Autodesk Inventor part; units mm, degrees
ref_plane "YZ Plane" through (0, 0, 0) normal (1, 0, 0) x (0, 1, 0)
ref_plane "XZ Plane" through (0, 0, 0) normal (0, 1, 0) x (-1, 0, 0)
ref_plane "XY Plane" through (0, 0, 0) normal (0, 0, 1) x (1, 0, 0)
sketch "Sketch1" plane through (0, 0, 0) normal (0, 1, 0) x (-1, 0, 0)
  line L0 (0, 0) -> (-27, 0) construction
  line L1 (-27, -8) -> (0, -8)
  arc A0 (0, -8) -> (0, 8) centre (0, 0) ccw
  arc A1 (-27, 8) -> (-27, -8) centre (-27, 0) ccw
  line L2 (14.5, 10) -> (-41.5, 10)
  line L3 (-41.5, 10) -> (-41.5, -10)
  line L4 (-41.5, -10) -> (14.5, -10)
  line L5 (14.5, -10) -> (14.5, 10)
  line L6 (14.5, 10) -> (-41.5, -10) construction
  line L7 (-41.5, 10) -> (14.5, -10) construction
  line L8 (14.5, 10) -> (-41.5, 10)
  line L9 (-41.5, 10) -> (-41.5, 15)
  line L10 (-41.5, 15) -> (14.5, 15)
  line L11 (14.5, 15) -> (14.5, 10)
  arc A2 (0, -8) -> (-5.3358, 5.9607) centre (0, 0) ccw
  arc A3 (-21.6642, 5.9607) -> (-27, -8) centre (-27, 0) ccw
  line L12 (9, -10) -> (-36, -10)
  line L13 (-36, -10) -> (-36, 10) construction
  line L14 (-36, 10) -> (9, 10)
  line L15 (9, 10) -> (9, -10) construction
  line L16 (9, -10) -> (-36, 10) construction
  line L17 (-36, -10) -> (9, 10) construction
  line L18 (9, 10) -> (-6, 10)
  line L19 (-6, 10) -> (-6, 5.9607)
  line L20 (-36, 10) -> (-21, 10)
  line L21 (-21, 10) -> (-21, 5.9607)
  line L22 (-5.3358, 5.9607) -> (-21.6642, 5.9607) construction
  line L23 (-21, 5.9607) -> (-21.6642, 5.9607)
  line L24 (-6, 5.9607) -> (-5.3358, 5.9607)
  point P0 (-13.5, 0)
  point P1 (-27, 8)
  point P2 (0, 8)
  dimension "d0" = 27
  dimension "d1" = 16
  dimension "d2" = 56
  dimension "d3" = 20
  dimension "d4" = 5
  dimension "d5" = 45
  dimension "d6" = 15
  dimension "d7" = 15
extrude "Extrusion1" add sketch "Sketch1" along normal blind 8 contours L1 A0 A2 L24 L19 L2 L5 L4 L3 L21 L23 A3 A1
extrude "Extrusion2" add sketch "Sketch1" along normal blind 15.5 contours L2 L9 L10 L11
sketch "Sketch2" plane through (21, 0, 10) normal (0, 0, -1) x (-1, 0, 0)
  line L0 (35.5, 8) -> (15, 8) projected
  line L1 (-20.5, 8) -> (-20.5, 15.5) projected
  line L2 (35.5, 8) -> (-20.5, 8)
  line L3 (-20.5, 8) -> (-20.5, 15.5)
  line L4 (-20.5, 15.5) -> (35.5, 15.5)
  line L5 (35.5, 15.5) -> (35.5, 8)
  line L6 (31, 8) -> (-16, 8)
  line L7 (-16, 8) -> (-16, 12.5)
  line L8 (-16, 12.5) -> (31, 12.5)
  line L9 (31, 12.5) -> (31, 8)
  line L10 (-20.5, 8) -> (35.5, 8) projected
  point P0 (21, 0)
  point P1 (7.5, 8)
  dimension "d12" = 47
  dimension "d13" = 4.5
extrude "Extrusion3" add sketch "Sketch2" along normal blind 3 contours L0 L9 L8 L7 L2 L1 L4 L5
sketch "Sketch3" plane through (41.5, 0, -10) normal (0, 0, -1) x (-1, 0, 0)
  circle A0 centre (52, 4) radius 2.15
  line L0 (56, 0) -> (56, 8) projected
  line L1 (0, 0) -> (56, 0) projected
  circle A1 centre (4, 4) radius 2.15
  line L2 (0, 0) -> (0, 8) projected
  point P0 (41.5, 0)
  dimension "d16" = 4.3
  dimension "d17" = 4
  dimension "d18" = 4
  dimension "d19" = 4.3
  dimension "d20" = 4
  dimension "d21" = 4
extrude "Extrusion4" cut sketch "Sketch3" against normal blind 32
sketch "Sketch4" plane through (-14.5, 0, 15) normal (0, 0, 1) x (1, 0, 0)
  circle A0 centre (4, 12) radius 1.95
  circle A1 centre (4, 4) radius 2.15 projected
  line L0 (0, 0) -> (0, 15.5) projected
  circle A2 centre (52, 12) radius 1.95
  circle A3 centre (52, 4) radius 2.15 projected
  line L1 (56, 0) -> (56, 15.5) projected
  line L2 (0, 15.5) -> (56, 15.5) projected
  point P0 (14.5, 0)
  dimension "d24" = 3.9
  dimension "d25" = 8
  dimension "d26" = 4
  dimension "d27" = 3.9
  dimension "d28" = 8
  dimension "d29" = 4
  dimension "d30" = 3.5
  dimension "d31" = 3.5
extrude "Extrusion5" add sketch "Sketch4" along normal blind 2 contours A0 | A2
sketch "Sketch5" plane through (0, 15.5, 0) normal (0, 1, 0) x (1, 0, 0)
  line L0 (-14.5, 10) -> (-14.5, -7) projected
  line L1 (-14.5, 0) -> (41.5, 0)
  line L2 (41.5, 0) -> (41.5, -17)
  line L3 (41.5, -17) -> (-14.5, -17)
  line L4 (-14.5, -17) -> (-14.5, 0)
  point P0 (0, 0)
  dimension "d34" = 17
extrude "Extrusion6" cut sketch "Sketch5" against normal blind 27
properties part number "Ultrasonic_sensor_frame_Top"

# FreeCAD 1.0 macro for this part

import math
import FreeCAD as App
import Part
import Sketcher

V = App.Vector


def add_polygon(sketch, points):
    """Adds a closed chain of lines whose ends are joined by coincident constraints."""
    first, n = sketch.GeometryCount, len(points)
    for a, b in zip(points, points[1:] + points[:1]):
        sketch.addGeometry(Part.LineSegment(App.Vector(*a, 0), App.Vector(*b, 0)), False)
    for i in range(n):
        sketch.addConstraint(Sketcher.Constraint("Coincident", first + i, 2, first + (i + 1) % n, 1))

doc = App.newDocument("Part")
body = doc.addObject("PartDesign::Body", "Body")

# Sketch on XZ plane
sketch1 = body.newObject("Sketcher::SketchObject", "Sketch")
sketch1.AttachmentSupport = (doc.getObject("XZ_Plane"), [""])
sketch1.MapMode = "FlatFace"
sketch1.addGeometry([
    Part.LineSegment(V(0, -8, 0), V(27, -8, 0)),  # 0
    Part.ArcOfCircle(Part.Circle(V(27, 0, 0), V(0, 0, 1), 8), math.radians(-90), math.radians(90)),  # 1
    Part.ArcOfCircle(Part.Circle(V(27, 0, 0), V(0, 0, 1), 8), math.radians(90), math.radians(132)),  # 2
    Part.LineSegment(V(21.7, 6, 0), V(21, 6, 0)),  # 3
    Part.LineSegment(V(21, 6, 0), V(21, 10, 0)),  # 4
    Part.LineSegment(V(21, 10, 0), V(41.5, 10, 0)),  # 5
    Part.LineSegment(V(41.5, 10, 0), V(41.5, -10, 0)),  # 6
    Part.LineSegment(V(41.5, -10, 0), V(-14.5, -10, 0)),  # 7
    Part.LineSegment(V(-14.5, -10, 0), V(-14.5, 10, 0)),  # 8
    Part.LineSegment(V(-14.5, 10, 0), V(6, 10, 0)),  # 9
    Part.LineSegment(V(6, 10, 0), V(6, 6, 0)),  # 10
    Part.LineSegment(V(6, 6, 0), V(5.3, 6, 0)),  # 11
    Part.ArcOfCircle(Part.Circle(V(0, 0, 0), V(0, 0, 1), 8), math.radians(48), math.radians(90)),  # 12
    Part.ArcOfCircle(Part.Circle(V(0, 0, 0), V(0, 0, 1), 8), math.radians(90), math.radians(270)),  # 13
], False)
sketch1.addConstraint([
    Sketcher.Constraint("Tangent", 0, 2, 1, 1),
    Sketcher.Constraint("Tangent", 1, 2, 2, 1),
    Sketcher.Constraint("Coincident", 2, 2, 3, 1),
    Sketcher.Constraint("Coincident", 3, 2, 4, 1),
    Sketcher.Constraint("Coincident", 4, 2, 5, 1),
    Sketcher.Constraint("Coincident", 5, 2, 6, 1),
    Sketcher.Constraint("Coincident", 6, 2, 7, 1),
    Sketcher.Constraint("Coincident", 7, 2, 8, 1),
    Sketcher.Constraint("Coincident", 8, 2, 9, 1),
    Sketcher.Constraint("Coincident", 9, 2, 10, 1),
    Sketcher.Constraint("Coincident", 10, 2, 11, 1),
    Sketcher.Constraint("Coincident", 11, 2, 12, 1),
    Sketcher.Constraint("Tangent", 12, 2, 13, 1),
    Sketcher.Constraint("Tangent", 13, 2, 0, 1),
    Sketcher.Constraint("Horizontal", 0),
    Sketcher.Constraint("Horizontal", 3),
    Sketcher.Constraint("Vertical", 4),
    Sketcher.Constraint("Horizontal", 5),
    Sketcher.Constraint("Vertical", 6),
    Sketcher.Constraint("Horizontal", 7),
    Sketcher.Constraint("Vertical", 8),
    Sketcher.Constraint("Horizontal", 9),
    Sketcher.Constraint("Vertical", 10),
    Sketcher.Constraint("Horizontal", 11),
    Sketcher.Constraint("Coincident", 12, 3, -1, 1),
    Sketcher.Constraint("Equal", 1, 2),
    Sketcher.Constraint("Equal", 2, 12),
    Sketcher.Constraint("Equal", 12, 13),
    Sketcher.Constraint("PointOnObject", 12, 2, -2),
    Sketcher.Constraint("Horizontal", 5, 2, 8, 2),
    Sketcher.Constraint("Horizontal", 3, 2, 10, 2),
    Sketcher.Constraint("Vertical", 0, 2, 1, 2),
    Sketcher.Constraint("Equal", 5, 9),
    Sketcher.Constraint("Equal", 3, 11),
    Sketcher.Constraint("Radius", 1, 8.0),
    Sketcher.Constraint("DistanceX", 0, 1, 0, 2, 27.0),
    Sketcher.Constraint("DistanceX", 7, 2, 7, 1, 56.0),
    Sketcher.Constraint("DistanceY", 6, 2, 6, 1, 20.0),
    Sketcher.Constraint("DistanceX", 9, 2, 4, 2, 15.0),
    Sketcher.Constraint("DistanceY", -1, 1, 4, 2, 10.0),
    Sketcher.Constraint("DistanceX", 3, 2, 3, 1, 0.6642),
])
pad1 = body.newObject("PartDesign::Pad", "Pad")
pad1.Profile = sketch1
pad1.Length = 8
pad1.Reversed = True

# Sketch on XZ plane
sketch2 = body.newObject("Sketcher::SketchObject", "Sketch001")
sketch2.AttachmentSupport = (doc.getObject("XZ_Plane"), [""])
sketch2.MapMode = "FlatFace"
add_polygon(sketch2, [(42, 10), (-14, 10), (-14, 15), (42, 15)])  # lines 0-3
sketch2.addConstraint([
    Sketcher.Constraint("Horizontal", 0),
    Sketcher.Constraint("Vertical", 1),
    Sketcher.Constraint("Horizontal", 2),
    Sketcher.Constraint("Vertical", 3),
    Sketcher.Constraint("DistanceX", 0, 2, 0, 1, 56.0),
    Sketcher.Constraint("DistanceY", 1, 1, 1, 2, 5.0),
    Sketcher.Constraint("DistanceY", -1, 1, 1, 2, 15.0),
    Sketcher.Constraint("DistanceX", 0, 2, -1, 1, 14.5),
])
pad2 = body.newObject("PartDesign::Pad", "Pad001")
pad2.Profile = sketch2
pad2.Length = 15.5
pad2.Reversed = True

# Sketch on XY plane
sketch3 = body.newObject("Sketcher::SketchObject", "Sketch002")
sketch3.AttachmentSupport = (doc.getObject("XY_Plane"), [""])
sketch3.MapMode = "FlatFace"
sketch3.AttachmentOffset = App.Placement(V(0, 0, 10), App.Rotation())
add_polygon(sketch3, [(-10, 8), (-14.5, 8), (-14.5, 15.5), (41.5, 15.5), (41.5, 8), (37, 8), (37, 12.5), (-10, 12.5)])  # lines 0-7
sketch3.addConstraint([
    Sketcher.Constraint("Horizontal", 0),
    Sketcher.Constraint("Vertical", 1),
    Sketcher.Constraint("Horizontal", 2),
    Sketcher.Constraint("Vertical", 3),
    Sketcher.Constraint("Horizontal", 4),
    Sketcher.Constraint("Vertical", 5),
    Sketcher.Constraint("Horizontal", 6),
    Sketcher.Constraint("Vertical", 7),
    Sketcher.Constraint("Horizontal", 0, 2, 3, 2),
    Sketcher.Constraint("Equal", 0, 4),
    Sketcher.Constraint("Equal", 4, 5),
    Sketcher.Constraint("DistanceX", 6, 2, 6, 1, 47.0),
    Sketcher.Constraint("DistanceX", 0, 2, 0, 1, 4.5),
    Sketcher.Constraint("DistanceY", 1, 1, 1, 2, 7.5),
    Sketcher.Constraint("DistanceY", -1, 1, 0, 2, 8.0),
    Sketcher.Constraint("DistanceX", -1, 1, 4, 2, 37.0),
])
pad3 = body.newObject("PartDesign::Pad", "Pad002")
pad3.Profile = sketch3
pad3.Length = 3
pad3.Reversed = True

# Sketch on XY plane
sketch4 = body.newObject("Sketcher::SketchObject", "Sketch003")
sketch4.AttachmentSupport = (doc.getObject("XY_Plane"), [""])
sketch4.MapMode = "FlatFace"
sketch4.AttachmentOffset = App.Placement(V(0, 0, -10), App.Rotation())
sketch4.addGeometry([
    Part.Circle(V(-10.5, 4, 0), V(0, 0, 1), 2.1),
    Part.Circle(V(37.5, 4, 0), V(0, 0, 1), 2.1),
], False)
sketch4.addConstraint([
    Sketcher.Constraint("Equal", 0, 1),
    Sketcher.Constraint("Horizontal", 0, 3, 1, 3),
    Sketcher.Constraint("Diameter", 0, 4.3),
    Sketcher.Constraint("DistanceY", -1, 1, 0, 3, 4.0),
    Sketcher.Constraint("DistanceX", 0, 3, 1, 3, 48.0),
    Sketcher.Constraint("DistanceX", 0, 3, -1, 1, 10.5),
])
pocket1 = body.newObject("PartDesign::Pocket", "Pocket")
pocket1.Profile = sketch4
pocket1.Length = 32
pocket1.Reversed = True

# Sketch on XY plane
sketch5 = body.newObject("Sketcher::SketchObject", "Sketch004")
sketch5.AttachmentSupport = (doc.getObject("XY_Plane"), [""])
sketch5.MapMode = "FlatFace"
sketch5.AttachmentOffset = App.Placement(V(0, 0, 15), App.Rotation())
sketch5.addGeometry([
    Part.Circle(V(-10.5, 12, 0), V(0, 0, 1), 1.9),
    Part.Circle(V(37.5, 12, 0), V(0, 0, 1), 1.9),
], False)
sketch5.addConstraint([
    Sketcher.Constraint("Equal", 0, 1),
    Sketcher.Constraint("Horizontal", 0, 3, 1, 3),
    Sketcher.Constraint("Diameter", 0, 3.9),
    Sketcher.Constraint("DistanceY", -1, 1, 0, 3, 12.0),
    Sketcher.Constraint("DistanceX", 0, 3, 1, 3, 48.0),
    Sketcher.Constraint("DistanceX", 0, 3, -1, 1, 10.5),
])
pad4 = body.newObject("PartDesign::Pad", "Pad003")
pad4.Profile = sketch5
pad4.Length = 2

# Sketch on XZ plane
sketch6 = body.newObject("Sketcher::SketchObject", "Sketch005")
sketch6.AttachmentSupport = (doc.getObject("XZ_Plane"), [""])
sketch6.MapMode = "FlatFace"
sketch6.AttachmentOffset = App.Placement(V(0, 0, -15.5), App.Rotation())
add_polygon(sketch6, [(42, 0), (-14, 0), (-14, 17), (42, 17)])  # lines 0-3
sketch6.addConstraint([
    Sketcher.Constraint("Horizontal", 0),
    Sketcher.Constraint("Vertical", 1),
    Sketcher.Constraint("Horizontal", 2),
    Sketcher.Constraint("Vertical", 3),
    Sketcher.Constraint("PointOnObject", 0, 2, -1),
    Sketcher.Constraint("DistanceY", 1, 1, 1, 2, 17.0),
    Sketcher.Constraint("DistanceX", 0, 2, 0, 1, 56.0),
    Sketcher.Constraint("DistanceX", 0, 2, -1, 1, 14.5),
])
pocket2 = body.newObject("PartDesign::Pocket", "Pocket001")
pocket2.Profile = sketch6
pocket2.Length = 27
pocket2.Reversed = True

doc.recompute()
